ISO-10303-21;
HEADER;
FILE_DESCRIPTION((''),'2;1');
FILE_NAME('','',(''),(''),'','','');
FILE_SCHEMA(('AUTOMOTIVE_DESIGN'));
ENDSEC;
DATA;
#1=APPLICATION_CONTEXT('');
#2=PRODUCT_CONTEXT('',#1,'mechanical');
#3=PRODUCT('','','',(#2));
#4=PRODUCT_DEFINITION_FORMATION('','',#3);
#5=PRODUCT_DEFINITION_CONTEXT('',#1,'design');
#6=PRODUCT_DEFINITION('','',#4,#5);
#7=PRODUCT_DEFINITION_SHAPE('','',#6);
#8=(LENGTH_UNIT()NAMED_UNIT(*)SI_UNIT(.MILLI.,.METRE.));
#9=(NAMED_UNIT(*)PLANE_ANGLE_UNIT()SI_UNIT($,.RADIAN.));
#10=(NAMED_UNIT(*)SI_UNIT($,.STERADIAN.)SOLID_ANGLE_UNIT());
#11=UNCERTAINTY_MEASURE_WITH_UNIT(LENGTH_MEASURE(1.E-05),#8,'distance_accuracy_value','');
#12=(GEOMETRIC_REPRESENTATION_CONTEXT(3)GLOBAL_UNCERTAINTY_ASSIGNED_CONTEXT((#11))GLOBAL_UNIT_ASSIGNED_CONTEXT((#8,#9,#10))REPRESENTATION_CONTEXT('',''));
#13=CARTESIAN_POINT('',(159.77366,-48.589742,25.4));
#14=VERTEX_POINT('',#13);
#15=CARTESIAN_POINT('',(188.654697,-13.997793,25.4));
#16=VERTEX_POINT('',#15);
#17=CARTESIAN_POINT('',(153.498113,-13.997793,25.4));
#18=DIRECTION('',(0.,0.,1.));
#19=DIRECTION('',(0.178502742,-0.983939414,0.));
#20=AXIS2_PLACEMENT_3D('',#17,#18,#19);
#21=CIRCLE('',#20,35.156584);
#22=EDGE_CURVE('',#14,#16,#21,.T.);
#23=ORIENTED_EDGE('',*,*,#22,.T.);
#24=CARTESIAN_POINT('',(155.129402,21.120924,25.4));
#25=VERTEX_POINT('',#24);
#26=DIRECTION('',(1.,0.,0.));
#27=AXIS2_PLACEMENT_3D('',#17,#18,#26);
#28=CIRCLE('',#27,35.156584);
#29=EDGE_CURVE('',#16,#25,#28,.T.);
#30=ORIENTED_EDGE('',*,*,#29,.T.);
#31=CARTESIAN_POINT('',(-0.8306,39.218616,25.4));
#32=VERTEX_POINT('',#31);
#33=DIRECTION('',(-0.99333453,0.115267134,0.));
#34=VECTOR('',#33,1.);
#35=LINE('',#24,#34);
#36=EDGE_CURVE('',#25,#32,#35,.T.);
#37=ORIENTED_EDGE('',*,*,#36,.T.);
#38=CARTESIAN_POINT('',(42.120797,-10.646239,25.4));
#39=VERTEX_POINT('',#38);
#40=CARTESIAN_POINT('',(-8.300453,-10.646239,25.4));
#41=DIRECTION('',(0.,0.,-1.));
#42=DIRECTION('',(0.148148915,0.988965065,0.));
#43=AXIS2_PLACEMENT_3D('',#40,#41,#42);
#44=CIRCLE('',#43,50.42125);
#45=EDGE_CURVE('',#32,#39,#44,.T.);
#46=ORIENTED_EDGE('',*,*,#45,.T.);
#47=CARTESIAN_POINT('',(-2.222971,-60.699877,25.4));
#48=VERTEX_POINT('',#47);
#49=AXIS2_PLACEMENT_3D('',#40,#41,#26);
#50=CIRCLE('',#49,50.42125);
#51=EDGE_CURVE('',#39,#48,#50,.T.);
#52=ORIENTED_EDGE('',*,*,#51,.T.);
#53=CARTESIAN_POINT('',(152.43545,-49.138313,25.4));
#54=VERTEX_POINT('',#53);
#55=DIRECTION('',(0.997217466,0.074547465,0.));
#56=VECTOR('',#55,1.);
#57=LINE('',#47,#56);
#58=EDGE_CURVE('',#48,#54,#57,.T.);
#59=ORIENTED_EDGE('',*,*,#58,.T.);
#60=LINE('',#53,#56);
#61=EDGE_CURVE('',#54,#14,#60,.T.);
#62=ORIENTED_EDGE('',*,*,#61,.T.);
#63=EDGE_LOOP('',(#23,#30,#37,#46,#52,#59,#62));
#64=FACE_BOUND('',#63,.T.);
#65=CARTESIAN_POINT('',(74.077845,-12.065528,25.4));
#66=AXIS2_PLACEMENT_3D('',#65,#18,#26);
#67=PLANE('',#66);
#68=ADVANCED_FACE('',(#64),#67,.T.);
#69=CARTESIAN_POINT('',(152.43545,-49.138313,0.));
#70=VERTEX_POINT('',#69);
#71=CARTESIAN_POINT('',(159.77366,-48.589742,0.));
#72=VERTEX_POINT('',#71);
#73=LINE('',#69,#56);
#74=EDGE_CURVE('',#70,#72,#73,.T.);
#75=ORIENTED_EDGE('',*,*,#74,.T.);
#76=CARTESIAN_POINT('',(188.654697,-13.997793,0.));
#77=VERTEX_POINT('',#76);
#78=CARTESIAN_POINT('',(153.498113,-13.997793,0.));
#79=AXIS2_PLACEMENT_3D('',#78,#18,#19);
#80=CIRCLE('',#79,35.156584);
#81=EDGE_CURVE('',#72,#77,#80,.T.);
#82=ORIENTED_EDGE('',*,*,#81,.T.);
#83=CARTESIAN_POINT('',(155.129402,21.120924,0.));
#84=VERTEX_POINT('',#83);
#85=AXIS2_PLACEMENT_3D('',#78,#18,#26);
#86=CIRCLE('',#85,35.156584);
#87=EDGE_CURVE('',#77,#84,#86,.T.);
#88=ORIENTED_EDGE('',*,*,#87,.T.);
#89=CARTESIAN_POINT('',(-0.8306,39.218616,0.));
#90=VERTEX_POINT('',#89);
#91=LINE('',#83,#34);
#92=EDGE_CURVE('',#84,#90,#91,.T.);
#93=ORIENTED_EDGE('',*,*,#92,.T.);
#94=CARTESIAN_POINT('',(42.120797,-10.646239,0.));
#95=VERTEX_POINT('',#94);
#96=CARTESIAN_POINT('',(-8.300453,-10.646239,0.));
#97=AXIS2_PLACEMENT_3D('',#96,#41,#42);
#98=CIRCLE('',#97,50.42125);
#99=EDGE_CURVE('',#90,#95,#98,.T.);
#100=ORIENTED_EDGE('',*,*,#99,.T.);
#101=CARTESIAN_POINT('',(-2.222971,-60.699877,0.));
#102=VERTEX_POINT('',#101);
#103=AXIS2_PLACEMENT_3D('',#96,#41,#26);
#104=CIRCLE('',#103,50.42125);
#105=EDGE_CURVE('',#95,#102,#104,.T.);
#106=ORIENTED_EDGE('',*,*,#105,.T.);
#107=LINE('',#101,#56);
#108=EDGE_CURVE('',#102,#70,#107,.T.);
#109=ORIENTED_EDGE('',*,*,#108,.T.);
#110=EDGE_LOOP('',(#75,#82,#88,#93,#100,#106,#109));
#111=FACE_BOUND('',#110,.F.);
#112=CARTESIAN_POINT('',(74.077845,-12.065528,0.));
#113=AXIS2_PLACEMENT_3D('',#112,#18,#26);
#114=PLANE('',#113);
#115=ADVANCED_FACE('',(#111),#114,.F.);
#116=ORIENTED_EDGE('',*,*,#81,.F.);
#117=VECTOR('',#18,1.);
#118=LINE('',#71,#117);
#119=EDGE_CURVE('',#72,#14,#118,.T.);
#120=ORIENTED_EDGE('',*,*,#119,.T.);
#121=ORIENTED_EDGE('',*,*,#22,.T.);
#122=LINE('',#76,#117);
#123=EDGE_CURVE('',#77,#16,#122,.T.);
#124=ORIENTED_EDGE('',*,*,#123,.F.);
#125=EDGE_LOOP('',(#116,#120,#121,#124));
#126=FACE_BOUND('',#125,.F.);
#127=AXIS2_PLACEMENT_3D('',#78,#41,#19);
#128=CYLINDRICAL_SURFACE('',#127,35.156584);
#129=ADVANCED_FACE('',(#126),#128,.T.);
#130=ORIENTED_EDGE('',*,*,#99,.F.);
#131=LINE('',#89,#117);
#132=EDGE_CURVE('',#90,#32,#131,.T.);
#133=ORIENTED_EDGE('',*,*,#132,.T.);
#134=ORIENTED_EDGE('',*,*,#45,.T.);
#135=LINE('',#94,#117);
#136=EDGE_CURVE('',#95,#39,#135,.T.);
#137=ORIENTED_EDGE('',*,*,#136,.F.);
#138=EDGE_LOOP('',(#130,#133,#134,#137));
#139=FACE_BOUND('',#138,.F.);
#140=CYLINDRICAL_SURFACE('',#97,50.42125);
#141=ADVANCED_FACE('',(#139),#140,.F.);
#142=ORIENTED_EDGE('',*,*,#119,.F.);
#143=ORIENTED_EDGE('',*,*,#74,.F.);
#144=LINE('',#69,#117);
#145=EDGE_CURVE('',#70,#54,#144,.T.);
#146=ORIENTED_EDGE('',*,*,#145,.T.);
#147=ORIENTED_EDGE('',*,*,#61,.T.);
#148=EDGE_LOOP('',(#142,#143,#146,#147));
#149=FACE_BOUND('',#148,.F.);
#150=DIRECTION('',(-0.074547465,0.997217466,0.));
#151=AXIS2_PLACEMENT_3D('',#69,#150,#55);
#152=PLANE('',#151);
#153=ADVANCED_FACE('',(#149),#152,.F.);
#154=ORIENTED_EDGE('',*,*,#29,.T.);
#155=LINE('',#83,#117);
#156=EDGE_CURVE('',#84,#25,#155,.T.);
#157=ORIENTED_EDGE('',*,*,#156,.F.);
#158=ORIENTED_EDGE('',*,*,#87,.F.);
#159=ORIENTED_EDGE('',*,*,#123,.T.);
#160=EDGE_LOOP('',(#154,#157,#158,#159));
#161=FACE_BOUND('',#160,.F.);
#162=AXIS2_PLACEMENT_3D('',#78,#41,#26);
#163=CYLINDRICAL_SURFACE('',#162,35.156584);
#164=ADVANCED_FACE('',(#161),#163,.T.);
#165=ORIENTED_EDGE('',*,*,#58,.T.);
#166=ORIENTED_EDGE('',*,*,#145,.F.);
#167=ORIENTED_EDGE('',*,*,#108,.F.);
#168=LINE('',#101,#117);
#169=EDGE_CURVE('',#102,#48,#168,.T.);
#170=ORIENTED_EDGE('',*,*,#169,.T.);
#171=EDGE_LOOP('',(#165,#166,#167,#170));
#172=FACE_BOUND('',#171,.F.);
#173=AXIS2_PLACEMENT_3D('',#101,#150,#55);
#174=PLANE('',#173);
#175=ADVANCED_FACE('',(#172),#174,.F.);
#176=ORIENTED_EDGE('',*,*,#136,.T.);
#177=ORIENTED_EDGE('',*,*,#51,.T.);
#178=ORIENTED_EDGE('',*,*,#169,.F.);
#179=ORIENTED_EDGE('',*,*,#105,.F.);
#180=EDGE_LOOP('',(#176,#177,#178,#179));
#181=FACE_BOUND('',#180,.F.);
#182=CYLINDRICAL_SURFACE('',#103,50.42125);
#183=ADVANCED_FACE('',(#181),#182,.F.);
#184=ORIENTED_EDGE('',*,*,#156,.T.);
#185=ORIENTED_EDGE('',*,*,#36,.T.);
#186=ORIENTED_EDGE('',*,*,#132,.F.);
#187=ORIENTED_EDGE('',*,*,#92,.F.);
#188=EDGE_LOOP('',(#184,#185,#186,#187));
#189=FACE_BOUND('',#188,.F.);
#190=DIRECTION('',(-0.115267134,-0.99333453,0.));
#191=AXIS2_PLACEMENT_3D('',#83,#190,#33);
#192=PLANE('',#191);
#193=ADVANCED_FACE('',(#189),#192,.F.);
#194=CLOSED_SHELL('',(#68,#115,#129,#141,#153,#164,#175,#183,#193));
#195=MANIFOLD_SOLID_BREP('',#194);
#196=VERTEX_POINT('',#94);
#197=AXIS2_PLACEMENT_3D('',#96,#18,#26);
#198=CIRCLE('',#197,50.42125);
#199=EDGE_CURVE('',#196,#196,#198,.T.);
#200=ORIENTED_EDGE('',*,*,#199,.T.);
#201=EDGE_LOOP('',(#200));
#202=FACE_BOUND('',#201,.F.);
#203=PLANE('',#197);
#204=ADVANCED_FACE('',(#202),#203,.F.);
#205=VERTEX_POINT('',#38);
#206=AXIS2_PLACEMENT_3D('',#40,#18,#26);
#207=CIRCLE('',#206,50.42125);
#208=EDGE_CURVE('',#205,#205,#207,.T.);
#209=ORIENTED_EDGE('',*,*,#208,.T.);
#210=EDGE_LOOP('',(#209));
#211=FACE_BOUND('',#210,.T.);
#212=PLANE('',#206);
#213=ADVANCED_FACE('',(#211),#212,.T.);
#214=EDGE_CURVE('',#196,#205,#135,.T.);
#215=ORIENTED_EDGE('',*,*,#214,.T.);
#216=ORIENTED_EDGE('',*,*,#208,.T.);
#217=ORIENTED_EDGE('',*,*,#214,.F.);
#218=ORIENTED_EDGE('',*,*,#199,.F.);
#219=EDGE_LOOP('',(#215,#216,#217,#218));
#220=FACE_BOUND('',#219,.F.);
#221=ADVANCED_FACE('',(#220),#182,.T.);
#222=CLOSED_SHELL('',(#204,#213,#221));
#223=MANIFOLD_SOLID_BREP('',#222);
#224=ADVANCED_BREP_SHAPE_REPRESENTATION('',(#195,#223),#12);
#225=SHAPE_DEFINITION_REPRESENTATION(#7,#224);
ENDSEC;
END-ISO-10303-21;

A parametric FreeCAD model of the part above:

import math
import FreeCAD as App
import Part
import Sketcher
from FreeCAD import Vector
Q = App.Units.Quantity

doc = App.newDocument("Part")
body = doc.addObject("PartDesign::Body", "Body")

# Sketch on XY plane
sketch1 = body.newObject("Sketcher::SketchObject", "Sketch")
sketch1.AttachmentSupport = (doc.getObject("XY_Plane"), [""])
sketch1.MapMode = "FlatFace"
sketch1.addGeometry(Part.Circle(Vector(-8, -11, 0), Vector(0, 0, 1), 50), False)
sketch1.addConstraint([
    Sketcher.Constraint("Diameter", 0, Q("100.842501 mm")),
    Sketcher.Constraint("DistanceY", 0, 3, -1, 1, Q("10.646239 mm")),
    Sketcher.Constraint("DistanceX", 0, 3, -1, 1, Q("8.300453 mm")),
])
pad1 = body.newObject("PartDesign::Pad", "Pad")
pad1.Profile = sketch1
pad1.Length = Q("1 in")
body2 = doc.addObject("PartDesign::Body", "Body001")

# Sketch on XY plane
sketch2 = body2.newObject("Sketcher::SketchObject", "Sketch001")
sketch2.AttachmentSupport = (doc.getObject("XY_Plane001"), [""])
sketch2.MapMode = "FlatFace"
sketch2.addGeometry([
    Part.ArcOfCircle(Part.Circle(Vector(-8, -11, 0), Vector(0, 0, 1), 50), math.radians(0), math.radians(81)),  # 0
    Part.ArcOfCircle(Part.Circle(Vector(-8, -11, 0), Vector(0, 0, 1), 50), math.radians(-83), math.radians(0)),  # 1
    Part.LineSegment(Vector(-2, -61, 0), Vector(152, -49, 0)),  # 2
    Part.LineSegment(Vector(152, -49, 0), Vector(160, -49, 0)),  # 3
    Part.ArcOfCircle(Part.Circle(Vector(153, -14, 0), Vector(0, 0, 1), 35), math.radians(-80), math.radians(0)),  # 4
    Part.ArcOfCircle(Part.Circle(Vector(153, -14, 0), Vector(0, 0, 1), 35), math.radians(0), math.radians(87)),  # 5
    Part.LineSegment(Vector(155, 21, 0), Vector(-1, 39, 0)),  # 6
], False)
sketch2.addConstraint([
    Sketcher.Constraint("Tangent", 0, 1, 1, 2),
    Sketcher.Constraint("Coincident", 1, 1, 2, 1),
    Sketcher.Constraint("Coincident", 2, 2, 3, 1),
    Sketcher.Constraint("Coincident", 3, 2, 4, 1),
    Sketcher.Constraint("Tangent", 4, 2, 5, 1),
    Sketcher.Constraint("Coincident", 5, 2, 6, 1),
    Sketcher.Constraint("Coincident", 6, 2, 0, 2),
    Sketcher.Constraint("Equal", 0, 1),
    Sketcher.Constraint("Equal", 4, 5),
    Sketcher.Constraint("Parallel", 2, 3),
    Sketcher.Constraint("Horizontal", 1, 3, 0, 1),
    Sketcher.Constraint("Horizontal", 5, 3, 4, 2),
    Sketcher.Constraint("Radius", 0, Q("50.42125 mm")),
    Sketcher.Constraint("DistanceX", 6, 2, 0, 1, Q("1.6909999 in")),
    Sketcher.Constraint("Radius", 4, Q("35.156584 mm")),
    Sketcher.Constraint("DistanceX", 6, 2, -1, 1, Q("0.8306 mm")),
    Sketcher.Constraint("DistanceX", 0, 1, 4, 2, Q("146.5339 mm")),
    Sketcher.Constraint("DistanceY", 0, 3, -1, 1, Q("10.646239 mm")),
    Sketcher.Constraint("DistanceX", 1, 1, -1, 1, Q("2.222971 mm")),
    Sketcher.Constraint("DistanceX", -1, 1, 2, 2, Q("152.43545 mm")),
    Sketcher.Constraint("DistanceX", -1, 1, 3, 2, Q("159.77366 mm")),
    Sketcher.Constraint("DistanceY", 3, 2, -1, 1, Q("48.589742 mm")),
    Sketcher.Constraint("DistanceX", 4, 3, 5, 2, Q("1.631289 mm")),
])
pad2 = body2.newObject("PartDesign::Pad", "Pad001")
pad2.Profile = sketch2
pad2.Length = Q("1 in")

doc.recompute()
